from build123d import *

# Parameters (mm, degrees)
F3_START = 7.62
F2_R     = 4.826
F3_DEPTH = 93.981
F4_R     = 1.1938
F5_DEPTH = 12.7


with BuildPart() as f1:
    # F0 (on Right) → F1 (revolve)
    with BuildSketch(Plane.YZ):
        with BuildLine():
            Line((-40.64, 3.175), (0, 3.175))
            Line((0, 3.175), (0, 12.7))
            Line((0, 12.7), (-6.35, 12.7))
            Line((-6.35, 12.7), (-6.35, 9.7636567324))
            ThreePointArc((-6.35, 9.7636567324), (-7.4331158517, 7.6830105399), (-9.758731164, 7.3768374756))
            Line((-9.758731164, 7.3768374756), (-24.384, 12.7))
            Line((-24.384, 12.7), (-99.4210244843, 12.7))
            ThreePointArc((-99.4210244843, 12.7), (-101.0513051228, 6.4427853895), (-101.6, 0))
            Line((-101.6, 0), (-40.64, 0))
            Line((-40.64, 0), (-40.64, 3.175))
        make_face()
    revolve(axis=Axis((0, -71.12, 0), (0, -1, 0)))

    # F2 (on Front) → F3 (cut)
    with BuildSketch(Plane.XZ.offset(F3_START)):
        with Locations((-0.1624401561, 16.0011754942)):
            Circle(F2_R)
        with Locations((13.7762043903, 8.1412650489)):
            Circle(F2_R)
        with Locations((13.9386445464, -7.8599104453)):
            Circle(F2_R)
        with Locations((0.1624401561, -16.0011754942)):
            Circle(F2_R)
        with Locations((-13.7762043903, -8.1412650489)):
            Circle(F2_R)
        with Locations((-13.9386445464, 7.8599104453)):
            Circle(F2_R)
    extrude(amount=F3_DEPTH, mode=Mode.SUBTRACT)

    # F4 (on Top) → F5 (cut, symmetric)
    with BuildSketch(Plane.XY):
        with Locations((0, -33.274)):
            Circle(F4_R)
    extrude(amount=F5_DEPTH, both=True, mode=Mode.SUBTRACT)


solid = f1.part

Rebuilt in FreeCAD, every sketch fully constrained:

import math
import FreeCAD as App
import Part
import Sketcher
Q = App.Units.Quantity

doc = App.newDocument("Part")
body = doc.addObject("PartDesign::Body", "Body")

# Sketch on YZ plane
sketch1 = doc.addObject("Sketcher::SketchObject", "Sketch")
body.addObject(sketch1)
sketch1.AttachmentSupport = (doc.YZ_Plane, [""])
sketch1.MapMode = "FlatFace"
sketch1.addGeometry([
    Part.LineSegment(App.Vector(-40.6, 3.2, 0), App.Vector(0, 3.2, 0)),  # 0
    Part.LineSegment(App.Vector(0, 3.2, 0), App.Vector(0, 12.7, 0)),  # 1
    Part.LineSegment(App.Vector(0, 12.7, 0), App.Vector(-6.3, 12.7, 0)),  # 2
    Part.LineSegment(App.Vector(-6.3, 12.7, 0), App.Vector(-6.3, 9.8, 0)),  # 3
    Part.ArcOfCircle(Part.Circle(App.Vector(-8.9, 9.8, 0), App.Vector(0, 0, 1), 2.5), math.radians(-110), math.radians(0)),  # 4
    Part.LineSegment(App.Vector(-9.8, 7.4, 0), App.Vector(-24.4, 12.7, 0)),  # 5
    Part.LineSegment(App.Vector(-24.4, 12.7, 0), App.Vector(-99.4, 12.7, 0)),  # 6
    Part.ArcOfCircle(Part.Circle(App.Vector(-63.5, 0, 0), App.Vector(0, 0, 1), 38.1), math.radians(160.53), math.radians(180)),  # 7
    Part.LineSegment(App.Vector(-101.6, 0, 0), App.Vector(-40.6, 0, 0)),  # 8
    Part.LineSegment(App.Vector(-40.6, 0, 0), App.Vector(-40.6, 3.2, 0)),  # 9
], False)
sketch1.addConstraint([
    Sketcher.Constraint("Coincident", 0, 2, 1, 1),
    Sketcher.Constraint("Coincident", 1, 2, 2, 1),
    Sketcher.Constraint("Coincident", 2, 2, 3, 1),
    Sketcher.Constraint("Tangent", 3, 2, 4, 2),
    Sketcher.Constraint("Tangent", 4, 1, 5, 1),
    Sketcher.Constraint("Coincident", 5, 2, 6, 1),
    Sketcher.Constraint("Coincident", 6, 2, 7, 1),
    Sketcher.Constraint("Coincident", 7, 2, 8, 1),
    Sketcher.Constraint("Coincident", 8, 2, 9, 1),
    Sketcher.Constraint("Coincident", 9, 2, 0, 1),
    Sketcher.Constraint("Horizontal", 0),
    Sketcher.Constraint("Vertical", 1),
    Sketcher.Constraint("Horizontal", 2),
    Sketcher.Constraint("Vertical", 3),
    Sketcher.Constraint("Horizontal", 6),
    Sketcher.Constraint("Horizontal", 8),
    Sketcher.Constraint("Vertical", 9),
    Sketcher.Constraint("PointOnObject", 7, 3, -1),
    Sketcher.Constraint("PointOnObject", 0, 2, -2),
    Sketcher.Constraint("PointOnObject", 7, 2, -1),
    Sketcher.Constraint("Horizontal", 2, 2, 5, 2),
    Sketcher.Constraint("Radius", 4, Q("0.1 in")),
    Sketcher.Constraint("Radius", 7, Q("1.5 in")),
    Sketcher.Constraint("DistanceX", 0, 1, 0, 2, Q("1.6 in")),
    Sketcher.Constraint("DistanceX", 8, 1, 8, 2, Q("2.4 in")),
    Sketcher.Constraint("Angle", 5, Q("160 deg")),
    Sketcher.Constraint("DistanceX", 2, 2, 2, 1, Q("0.25 in")),
    Sketcher.Constraint("DistanceY", -1, 1, 1, 2, Q("0.5 in")),
    Sketcher.Constraint("DistanceY", 1, 1, 1, 2, Q("0.375 in")),
    Sketcher.Constraint("DistanceX", 5, 2, -1, 1, Q("0.96 in")),
])
revolution = doc.addObject("PartDesign::Revolution", "Revolution")
body.addObject(revolution)
revolution.Profile = sketch1
revolution.ReferenceAxis = (sketch1, ["H_Axis"])
revolution.Angle = 360

# Sketch on XZ plane
sketch2 = doc.addObject("Sketcher::SketchObject", "Sketch001")
body.addObject(sketch2)
sketch2.AttachmentSupport = (doc.XZ_Plane, [""])
sketch2.MapMode = "FlatFace"
sketch2.AttachmentOffset = App.Placement(App.Vector(0, 0, 0.3 * 25.4), App.Rotation())
sketch2.addGeometry([
    Part.Circle(App.Vector(-0.2, 16, 0), App.Vector(0, 0, 1), 4.8),  # 0
    Part.Circle(App.Vector(13.8, 8.1, 0), App.Vector(0, 0, 1), 4.8),  # 1
    Part.Circle(App.Vector(13.9, -7.9, 0), App.Vector(0, 0, 1), 4.8),  # 2
    Part.Circle(App.Vector(0.2, -16, 0), App.Vector(0, 0, 1), 4.8),  # 3
    Part.Circle(App.Vector(-13.8, -8.1, 0), App.Vector(0, 0, 1), 4.8),  # 4
    Part.Circle(App.Vector(-13.9, 7.9, 0), App.Vector(0, 0, 1), 4.8),  # 5
], False)
sketch2.addConstraint([
    Sketcher.Constraint("Equal", 0, 1),
    Sketcher.Constraint("Equal", 1, 2),
    Sketcher.Constraint("Equal", 2, 3),
    Sketcher.Constraint("Equal", 3, 4),
    Sketcher.Constraint("Equal", 4, 5),
    Sketcher.Constraint("Symmetric", 0, 3, 3, 3, -1, 1),
    Sketcher.Constraint("Symmetric", 1, 3, 4, 3, -1, 1),
    Sketcher.Constraint("Symmetric", 2, 3, 5, 3, -1, 1),
    Sketcher.Constraint("Diameter", 0, Q("0.38 in")),
    Sketcher.Constraint("DistanceX", 0, 3, -1, 1, 0.16244),
    Sketcher.Constraint("DistanceY", 2, 3, -1, 1, 7.85991),
    Sketcher.Constraint("DistanceY", 1, 3, 0, 3, 7.85991),
    Sketcher.Constraint("DistanceX", 1, 3, 2, 3, 0.16244),
    Sketcher.Constraint("DistanceY", 3, 3, 1, 3, 24.142441),
    Sketcher.Constraint("DistanceX", 4, 3, 2, 3, 27.714849),
])
pocket1 = doc.addObject("PartDesign::Pocket", "Pocket")
body.addObject(pocket1)
pocket1.Profile = sketch2
pocket1.Length = 93.981
pocket1.Reversed = True

# Sketch on XY plane
sketch3 = doc.addObject("Sketcher::SketchObject", "Sketch002")
body.addObject(sketch3)
sketch3.AttachmentSupport = (doc.XY_Plane, [""])
sketch3.MapMode = "FlatFace"
sketch3.addGeometry(Part.Circle(App.Vector(0, -33.3, 0), App.Vector(0, 0, 1), 1.2), False)
sketch3.addConstraint([
    Sketcher.Constraint("PointOnObject", 0, 3, -2),
    Sketcher.Constraint("Diameter", 0, Q("0.094 in")),
    Sketcher.Constraint("DistanceY", 0, 3, -1, 1, Q("1.31 in")),
])
pocket2 = doc.addObject("PartDesign::Pocket", "Pocket001")
body.addObject(pocket2)
pocket2.Profile = sketch3
pocket2.Length = Q("1 in")
pocket2.Midplane = True

doc.recompute()
